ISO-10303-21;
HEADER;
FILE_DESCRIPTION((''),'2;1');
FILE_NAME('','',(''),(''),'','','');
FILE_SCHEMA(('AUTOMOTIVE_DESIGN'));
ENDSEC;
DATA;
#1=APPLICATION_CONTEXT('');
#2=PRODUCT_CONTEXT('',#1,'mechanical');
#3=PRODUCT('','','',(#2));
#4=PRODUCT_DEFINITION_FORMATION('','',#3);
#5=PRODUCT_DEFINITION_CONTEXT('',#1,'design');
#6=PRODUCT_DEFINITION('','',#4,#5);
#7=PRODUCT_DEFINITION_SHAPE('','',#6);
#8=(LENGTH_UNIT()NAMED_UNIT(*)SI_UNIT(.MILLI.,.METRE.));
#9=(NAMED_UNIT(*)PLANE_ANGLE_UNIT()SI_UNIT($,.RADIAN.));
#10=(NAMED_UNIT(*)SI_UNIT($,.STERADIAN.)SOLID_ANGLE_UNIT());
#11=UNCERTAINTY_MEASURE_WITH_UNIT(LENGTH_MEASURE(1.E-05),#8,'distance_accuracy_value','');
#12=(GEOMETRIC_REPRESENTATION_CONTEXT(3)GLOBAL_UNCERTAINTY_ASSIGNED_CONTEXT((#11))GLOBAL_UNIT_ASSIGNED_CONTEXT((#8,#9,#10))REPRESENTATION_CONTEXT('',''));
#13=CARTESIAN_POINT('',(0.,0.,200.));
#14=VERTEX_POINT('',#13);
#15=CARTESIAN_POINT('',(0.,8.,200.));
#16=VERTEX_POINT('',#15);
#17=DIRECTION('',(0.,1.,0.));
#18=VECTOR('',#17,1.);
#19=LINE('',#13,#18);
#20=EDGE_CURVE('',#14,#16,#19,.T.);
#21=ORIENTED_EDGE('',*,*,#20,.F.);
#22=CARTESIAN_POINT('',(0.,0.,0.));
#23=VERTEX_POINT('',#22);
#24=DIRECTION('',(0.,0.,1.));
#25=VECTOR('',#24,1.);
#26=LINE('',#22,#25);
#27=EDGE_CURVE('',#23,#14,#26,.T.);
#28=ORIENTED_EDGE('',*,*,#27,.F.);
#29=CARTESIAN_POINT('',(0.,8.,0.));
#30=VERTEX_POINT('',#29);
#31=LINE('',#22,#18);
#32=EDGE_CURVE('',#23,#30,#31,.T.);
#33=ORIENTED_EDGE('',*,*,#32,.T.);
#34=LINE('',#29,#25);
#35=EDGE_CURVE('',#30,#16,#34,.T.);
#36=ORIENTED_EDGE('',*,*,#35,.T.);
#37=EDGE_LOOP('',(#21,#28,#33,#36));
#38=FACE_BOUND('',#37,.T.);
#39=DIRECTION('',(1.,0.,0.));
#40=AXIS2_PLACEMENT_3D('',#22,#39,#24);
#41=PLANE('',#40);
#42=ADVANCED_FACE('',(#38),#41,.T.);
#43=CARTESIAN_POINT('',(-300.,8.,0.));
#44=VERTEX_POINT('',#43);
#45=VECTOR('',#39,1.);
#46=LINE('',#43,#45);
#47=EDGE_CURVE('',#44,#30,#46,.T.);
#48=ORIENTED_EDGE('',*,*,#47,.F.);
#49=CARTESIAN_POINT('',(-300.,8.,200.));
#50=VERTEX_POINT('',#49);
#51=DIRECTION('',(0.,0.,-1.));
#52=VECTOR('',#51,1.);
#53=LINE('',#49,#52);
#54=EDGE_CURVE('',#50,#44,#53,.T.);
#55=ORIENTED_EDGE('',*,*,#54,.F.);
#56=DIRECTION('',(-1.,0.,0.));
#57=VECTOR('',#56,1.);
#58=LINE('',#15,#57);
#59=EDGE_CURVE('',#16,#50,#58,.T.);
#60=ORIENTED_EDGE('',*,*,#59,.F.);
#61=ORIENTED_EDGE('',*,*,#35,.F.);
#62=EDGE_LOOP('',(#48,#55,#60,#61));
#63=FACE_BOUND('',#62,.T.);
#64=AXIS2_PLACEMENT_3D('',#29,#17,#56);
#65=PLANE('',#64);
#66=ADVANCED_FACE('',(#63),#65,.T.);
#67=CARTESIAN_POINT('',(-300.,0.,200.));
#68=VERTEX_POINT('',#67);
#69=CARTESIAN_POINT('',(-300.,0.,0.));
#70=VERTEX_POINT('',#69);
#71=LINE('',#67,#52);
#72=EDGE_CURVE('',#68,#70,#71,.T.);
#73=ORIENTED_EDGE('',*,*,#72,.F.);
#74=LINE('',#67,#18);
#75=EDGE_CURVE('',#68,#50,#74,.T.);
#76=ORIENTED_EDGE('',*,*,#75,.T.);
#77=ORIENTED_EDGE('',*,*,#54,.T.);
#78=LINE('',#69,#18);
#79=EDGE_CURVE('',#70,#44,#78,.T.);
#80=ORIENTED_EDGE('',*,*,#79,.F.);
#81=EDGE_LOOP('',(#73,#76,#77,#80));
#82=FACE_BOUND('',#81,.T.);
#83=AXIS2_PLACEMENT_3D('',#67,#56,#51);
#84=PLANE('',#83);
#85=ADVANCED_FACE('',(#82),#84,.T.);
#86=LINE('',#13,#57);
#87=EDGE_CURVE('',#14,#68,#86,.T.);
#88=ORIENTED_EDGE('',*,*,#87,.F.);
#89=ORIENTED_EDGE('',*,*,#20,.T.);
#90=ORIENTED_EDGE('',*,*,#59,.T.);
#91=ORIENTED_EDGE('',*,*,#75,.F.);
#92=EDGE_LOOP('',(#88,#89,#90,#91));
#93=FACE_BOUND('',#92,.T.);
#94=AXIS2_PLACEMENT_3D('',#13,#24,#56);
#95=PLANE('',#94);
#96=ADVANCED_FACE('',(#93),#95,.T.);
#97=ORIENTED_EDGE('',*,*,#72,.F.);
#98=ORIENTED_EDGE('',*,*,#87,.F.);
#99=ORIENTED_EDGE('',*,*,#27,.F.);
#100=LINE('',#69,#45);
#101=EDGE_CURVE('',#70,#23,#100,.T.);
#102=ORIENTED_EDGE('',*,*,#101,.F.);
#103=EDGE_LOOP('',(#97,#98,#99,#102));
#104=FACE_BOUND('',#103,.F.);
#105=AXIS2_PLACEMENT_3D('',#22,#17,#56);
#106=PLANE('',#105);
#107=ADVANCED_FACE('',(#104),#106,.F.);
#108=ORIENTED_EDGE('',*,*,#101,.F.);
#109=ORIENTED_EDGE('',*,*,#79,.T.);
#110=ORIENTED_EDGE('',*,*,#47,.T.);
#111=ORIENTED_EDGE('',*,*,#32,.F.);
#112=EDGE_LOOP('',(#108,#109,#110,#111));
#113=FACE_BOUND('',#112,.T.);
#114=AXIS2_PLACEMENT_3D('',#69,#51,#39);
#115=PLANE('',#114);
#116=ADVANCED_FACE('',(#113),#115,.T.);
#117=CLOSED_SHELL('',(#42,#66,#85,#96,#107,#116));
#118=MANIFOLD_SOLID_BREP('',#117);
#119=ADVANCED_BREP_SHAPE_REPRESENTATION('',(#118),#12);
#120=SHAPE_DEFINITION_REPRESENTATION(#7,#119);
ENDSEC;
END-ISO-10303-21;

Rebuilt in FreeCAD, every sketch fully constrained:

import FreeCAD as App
import Part
import Sketcher
from FreeCAD import Vector
Q = App.Units.Quantity

doc = App.newDocument("Part")
body = doc.addObject("PartDesign::Body", "Body")

# Sketch on XZ plane
sketch1 = body.newObject("Sketcher::SketchObject", "Sketch")
sketch1.AttachmentSupport = (doc.getObject("XZ_Plane"), [""])
sketch1.MapMode = "FlatFace"
sketch1.addGeometry([
    Part.LineSegment(Vector(0, 200, 0), Vector(0, 0, 0)),
    Part.LineSegment(Vector(0, 0, 0), Vector(-300, 0, 0)),
    Part.LineSegment(Vector(-300, 0, 0), Vector(-300, 200, 0)),
    Part.LineSegment(Vector(-300, 200, 0), Vector(0, 200, 0)),
], False)
sketch1.addConstraint([
    Sketcher.Constraint("Coincident", 0, 2, 1, 1),
    Sketcher.Constraint("Coincident", 1, 2, 2, 1),
    Sketcher.Constraint("Coincident", 2, 2, 3, 1),
    Sketcher.Constraint("Coincident", 3, 2, 0, 1),
    Sketcher.Constraint("Vertical", 0),
    Sketcher.Constraint("Horizontal", 1),
    Sketcher.Constraint("Vertical", 2),
    Sketcher.Constraint("Horizontal", 3),
    Sketcher.Constraint("Coincident", 0, 2, -1, 1),
    Sketcher.Constraint("DistanceX", 1, 2, 1, 1, Q("300 mm")),
    Sketcher.Constraint("DistanceY", 0, 2, 0, 1, Q("200 mm")),
])
pad1 = body.newObject("PartDesign::Pad", "Pad")
pad1.Profile = sketch1
pad1.Length = 8
pad1.Reversed = True

doc.recompute()
